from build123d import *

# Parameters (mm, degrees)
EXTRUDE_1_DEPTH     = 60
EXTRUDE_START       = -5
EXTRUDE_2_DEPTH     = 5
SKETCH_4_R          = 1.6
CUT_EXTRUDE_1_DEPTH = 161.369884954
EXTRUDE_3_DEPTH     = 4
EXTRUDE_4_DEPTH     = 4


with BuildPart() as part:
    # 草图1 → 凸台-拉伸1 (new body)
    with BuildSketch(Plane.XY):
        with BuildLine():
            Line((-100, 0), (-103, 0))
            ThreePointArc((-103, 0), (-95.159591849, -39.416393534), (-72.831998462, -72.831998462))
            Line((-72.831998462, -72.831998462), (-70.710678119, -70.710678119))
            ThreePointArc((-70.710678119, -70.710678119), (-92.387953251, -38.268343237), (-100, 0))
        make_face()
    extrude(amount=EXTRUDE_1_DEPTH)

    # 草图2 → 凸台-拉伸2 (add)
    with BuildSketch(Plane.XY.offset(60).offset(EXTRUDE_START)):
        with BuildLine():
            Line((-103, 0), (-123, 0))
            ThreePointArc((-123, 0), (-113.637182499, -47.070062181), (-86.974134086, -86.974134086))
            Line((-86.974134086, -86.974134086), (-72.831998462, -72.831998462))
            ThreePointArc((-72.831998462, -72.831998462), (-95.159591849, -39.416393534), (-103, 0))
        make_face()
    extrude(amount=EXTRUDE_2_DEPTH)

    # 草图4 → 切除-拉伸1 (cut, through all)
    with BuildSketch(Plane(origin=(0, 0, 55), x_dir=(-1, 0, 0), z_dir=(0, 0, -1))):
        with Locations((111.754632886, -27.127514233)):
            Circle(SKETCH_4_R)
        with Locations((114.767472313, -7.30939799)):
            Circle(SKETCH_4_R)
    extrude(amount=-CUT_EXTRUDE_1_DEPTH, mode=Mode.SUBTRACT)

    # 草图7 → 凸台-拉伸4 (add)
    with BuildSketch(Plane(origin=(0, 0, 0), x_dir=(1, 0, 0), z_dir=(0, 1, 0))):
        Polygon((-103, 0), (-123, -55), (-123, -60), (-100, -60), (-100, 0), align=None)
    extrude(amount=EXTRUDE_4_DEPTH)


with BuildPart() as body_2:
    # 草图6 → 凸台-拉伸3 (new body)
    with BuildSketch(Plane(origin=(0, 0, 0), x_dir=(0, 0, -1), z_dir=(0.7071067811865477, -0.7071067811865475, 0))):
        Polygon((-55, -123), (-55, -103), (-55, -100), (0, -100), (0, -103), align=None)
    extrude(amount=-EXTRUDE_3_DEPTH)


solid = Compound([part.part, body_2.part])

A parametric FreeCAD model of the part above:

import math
import FreeCAD as App
import Part
import Sketcher
Q = App.Units.Quantity

doc = App.newDocument("Part")
params = doc.addObject("Spreadsheet::Sheet", "Params")
for row, (alias, value) in enumerate([
    ("sketch1_radius", "103 mm"),
    ("sketch1_radius2", "100 mm"),
    ("pad1_length", "60 mm"),
    ("sketch2_radius", "123 mm"),
    ("sketch2_radius2", "103 mm"),
    ("pad2_length", "5 mm"),
    ("sketch3_diameter", "3.2 mm"),
    ("sketch4_width", "23 mm"),
    ("sketch4_width2", "3 mm"),
    ("sketch4_height", "5 mm"),
    ("sketch4_height2", "60 mm"),
    ("pad3_length", "4 mm"),
    ("sketch5_width", "55 mm"),
    ("sketch5_height", "23 mm"),
    ("sketch5_height2", "3 mm"),
    ("pad4_length", "4 mm"),
], start=1):
    params.set(f"A{row}", alias)
    params.set(f"B{row}", "=" + value)
    params.setAlias(f"B{row}", alias)

body = doc.addObject("PartDesign::Body", "Body")

sketch1 = doc.addObject("Sketcher::SketchObject", "Sketch")
body.addObject(sketch1)
sketch1.AttachmentSupport = (doc.XY_Plane, [""])
sketch1.MapMode = "FlatFace"
sketch1.addGeometry([
    Part.LineSegment(App.Vector(-100, 0, 0), App.Vector(-103, 0, 0)),
    Part.ArcOfCircle(Part.Circle(App.Vector(0, 0, 0), App.Vector(0, 0, 1), 103), math.radians(180), math.radians(225)),
    Part.LineSegment(App.Vector(-72.8, -72.8, 0), App.Vector(-70.7, -70.7, 0)),
    Part.ArcOfCircle(Part.Circle(App.Vector(0, 0, 0), App.Vector(0, 0, 1), 100), math.radians(180), math.radians(225)),
], False)
sketch1.addConstraint([
    Sketcher.Constraint("Coincident", 0, 2, 1, 1),
    Sketcher.Constraint("Coincident", 1, 2, 2, 1),
    Sketcher.Constraint("Coincident", 2, 2, 3, 2),
    Sketcher.Constraint("Coincident", 3, 1, 0, 1),
    Sketcher.Constraint("Horizontal", 0),
    Sketcher.Constraint("Coincident", 1, 3, -1, 1),
    Sketcher.Constraint("Coincident", 3, 3, -1, 1),
    Sketcher.Constraint("PointOnObject", 0, 2, -1),
    Sketcher.Constraint("Radius", 1, 103.0),
    Sketcher.Constraint("Radius", 3, 100.0),
    Sketcher.Constraint("Angle", 2, Q("45 deg")),
    Sketcher.Constraint("DistanceX", 1, 2, -1, 1, 72.831998),
])
sketch1.setExpression("Constraints[8]", "Params.sketch1_radius")
sketch1.setExpression("Constraints[9]", "Params.sketch1_radius2")
pad1 = doc.addObject("PartDesign::Pad", "Pad")
body.addObject(pad1)
pad1.Profile = sketch1
pad1.setExpression("Length", "Params.pad1_length")

sketch2 = doc.addObject("Sketcher::SketchObject", "Sketch001")
body.addObject(sketch2)
sketch2.AttachmentSupport = (doc.XY_Plane, [""])
sketch2.MapMode = "FlatFace"
sketch2.AttachmentOffset = App.Placement(App.Vector(0, 0, 55), App.Rotation())
sketch2.addGeometry([
    Part.LineSegment(App.Vector(-103, 0, 0), App.Vector(-123, 0, 0)),
    Part.ArcOfCircle(Part.Circle(App.Vector(0, 0, 0), App.Vector(0, 0, 1), 123), math.radians(180), math.radians(225)),
    Part.LineSegment(App.Vector(-87, -87, 0), App.Vector(-73, -73, 0)),
    Part.ArcOfCircle(Part.Circle(App.Vector(0, 0, 0), App.Vector(0, 0, 1), 103), math.radians(180), math.radians(225)),
], False)
sketch2.addConstraint([
    Sketcher.Constraint("Coincident", 0, 2, 1, 1),
    Sketcher.Constraint("Coincident", 1, 2, 2, 1),
    Sketcher.Constraint("Coincident", 2, 2, 3, 2),
    Sketcher.Constraint("Coincident", 3, 1, 0, 1),
    Sketcher.Constraint("Horizontal", 0),
    Sketcher.Constraint("Coincident", 1, 3, -1, 1),
    Sketcher.Constraint("Coincident", 3, 3, -1, 1),
    Sketcher.Constraint("PointOnObject", 0, 2, -1),
    Sketcher.Constraint("Radius", 1, 123.0),
    Sketcher.Constraint("Radius", 3, 103.0),
    Sketcher.Constraint("Angle", 2, Q("45 deg")),
    Sketcher.Constraint("DistanceX", 2, 2, -1, 1, 72.831998),
])
sketch2.setExpression("Constraints[8]", "Params.sketch2_radius")
sketch2.setExpression("Constraints[9]", "Params.sketch2_radius2")
pad2 = doc.addObject("PartDesign::Pad", "Pad001")
body.addObject(pad2)
pad2.Profile = sketch2
pad2.setExpression("Length", "Params.pad2_length")

sketch3 = doc.addObject("Sketcher::SketchObject", "Sketch002")
body.addObject(sketch3)
sketch3.AttachmentSupport = (doc.XY_Plane, [""])
sketch3.MapMode = "FlatFace"
sketch3.AttachmentOffset = App.Placement(App.Vector(0, 0, 55), App.Rotation())
sketch3.addGeometry([
    Part.Circle(App.Vector(-111.8, -27.1, 0), App.Vector(0, 0, 1), 1.6),
    Part.Circle(App.Vector(-114.8, -7.3, 0), App.Vector(0, 0, 1), 1.6),
], False)
sketch3.addConstraint([
    Sketcher.Constraint("Equal", 0, 1),
    Sketcher.Constraint("Diameter", 0, 3.2),
    Sketcher.Constraint("DistanceX", 1, 3, 0, 3, 3.012839),
    Sketcher.Constraint("DistanceX", 0, 3, -1, 1, 111.754633),
    Sketcher.Constraint("DistanceY", 0, 3, -1, 1, 27.127514),
    Sketcher.Constraint("DistanceY", 1, 3, -1, 1, 7.309398),
])
sketch3.setExpression("Constraints[1]", "Params.sketch3_diameter")
pocket1 = doc.addObject("PartDesign::Pocket", "Pocket")
body.addObject(pocket1)
pocket1.Profile = sketch3
pocket1.Type = "ThroughAll"
pocket1.Reversed = True

sketch4 = doc.addObject("Sketcher::SketchObject", "Sketch003")
body.addObject(sketch4)
sketch4.AttachmentSupport = (doc.XZ_Plane, [""])
sketch4.MapMode = "FlatFace"
sketch4.addGeometry([
    Part.LineSegment(App.Vector(-103, 0, 0), App.Vector(-123, 55, 0)),
    Part.LineSegment(App.Vector(-123, 55, 0), App.Vector(-123, 60, 0)),
    Part.LineSegment(App.Vector(-123, 60, 0), App.Vector(-100, 60, 0)),
    Part.LineSegment(App.Vector(-100, 60, 0), App.Vector(-100, 0, 0)),
    Part.LineSegment(App.Vector(-100, 0, 0), App.Vector(-103, 0, 0)),
], False)
sketch4.addConstraint([
    Sketcher.Constraint("Coincident", 0, 2, 1, 1),
    Sketcher.Constraint("Coincident", 1, 2, 2, 1),
    Sketcher.Constraint("Coincident", 2, 2, 3, 1),
    Sketcher.Constraint("Coincident", 3, 2, 4, 1),
    Sketcher.Constraint("Coincident", 4, 2, 0, 1),
    Sketcher.Constraint("Vertical", 1),
    Sketcher.Constraint("Horizontal", 2),
    Sketcher.Constraint("Vertical", 3),
    Sketcher.Constraint("Horizontal", 4),
    Sketcher.Constraint("PointOnObject", 3, 2, -1),
    Sketcher.Constraint("DistanceX", 2, 1, 2, 2, 23.0),
    Sketcher.Constraint("DistanceX", 4, 2, 4, 1, 3.0),
    Sketcher.Constraint("DistanceY", 1, 1, 1, 2, 5.0),
    Sketcher.Constraint("DistanceY", 3, 2, 3, 1, 60.0),
    Sketcher.Constraint("DistanceX", 0, 2, -1, 1, 123.0),
])
sketch4.setExpression("Constraints[10]", "Params.sketch4_width")
sketch4.setExpression("Constraints[11]", "Params.sketch4_width2")
sketch4.setExpression("Constraints[12]", "Params.sketch4_height")
sketch4.setExpression("Constraints[13]", "Params.sketch4_height2")
pad3 = doc.addObject("PartDesign::Pad", "Pad002")
body.addObject(pad3)
pad3.Profile = sketch4
pad3.setExpression("Length", "Params.pad3_length")
pad3.Reversed = True
body2 = doc.addObject("PartDesign::Body", "Body001")

sketch5 = doc.addObject("Sketcher::SketchObject", "Sketch004")
body2.addObject(sketch5)
sketch5.Placement = App.Placement(App.Vector(0, 0, 0), App.Rotation(App.Vector(0, 0, -1), App.Vector(0.707106781, 0.707106781, 0), App.Vector(0.707106781, -0.707106781, 0), "ZXY"))
sketch5.addGeometry([
    Part.LineSegment(App.Vector(-55, -100, 0), App.Vector(-55, -123, 0)),
    Part.LineSegment(App.Vector(-55, -123, 0), App.Vector(0, -103, 0)),
    Part.LineSegment(App.Vector(0, -103, 0), App.Vector(0, -100, 0)),
    Part.LineSegment(App.Vector(0, -100, 0), App.Vector(-55, -100, 0)),
], False)
sketch5.addConstraint([
    Sketcher.Constraint("Coincident", 0, 2, 1, 1),
    Sketcher.Constraint("Coincident", 1, 2, 2, 1),
    Sketcher.Constraint("Coincident", 2, 2, 3, 1),
    Sketcher.Constraint("Coincident", 3, 2, 0, 1),
    Sketcher.Constraint("Vertical", 0),
    Sketcher.Constraint("Vertical", 2),
    Sketcher.Constraint("Horizontal", 3),
    Sketcher.Constraint("PointOnObject", 1, 2, -2),
    Sketcher.Constraint("DistanceX", 3, 2, 3, 1, 55.0),
    Sketcher.Constraint("DistanceY", 0, 2, 0, 1, 23.0),
    Sketcher.Constraint("DistanceY", 2, 1, 2, 2, 3.0),
    Sketcher.Constraint("DistanceY", 0, 2, -1, 1, 123.0),
])
sketch5.setExpression("Constraints[8]", "Params.sketch5_width")
sketch5.setExpression("Constraints[9]", "Params.sketch5_height")
sketch5.setExpression("Constraints[10]", "Params.sketch5_height2")
pad4 = doc.addObject("PartDesign::Pad", "Pad003")
body2.addObject(pad4)
pad4.Profile = sketch5
pad4.setExpression("Length", "Params.pad4_length")
pad4.Reversed = True

doc.recompute()
